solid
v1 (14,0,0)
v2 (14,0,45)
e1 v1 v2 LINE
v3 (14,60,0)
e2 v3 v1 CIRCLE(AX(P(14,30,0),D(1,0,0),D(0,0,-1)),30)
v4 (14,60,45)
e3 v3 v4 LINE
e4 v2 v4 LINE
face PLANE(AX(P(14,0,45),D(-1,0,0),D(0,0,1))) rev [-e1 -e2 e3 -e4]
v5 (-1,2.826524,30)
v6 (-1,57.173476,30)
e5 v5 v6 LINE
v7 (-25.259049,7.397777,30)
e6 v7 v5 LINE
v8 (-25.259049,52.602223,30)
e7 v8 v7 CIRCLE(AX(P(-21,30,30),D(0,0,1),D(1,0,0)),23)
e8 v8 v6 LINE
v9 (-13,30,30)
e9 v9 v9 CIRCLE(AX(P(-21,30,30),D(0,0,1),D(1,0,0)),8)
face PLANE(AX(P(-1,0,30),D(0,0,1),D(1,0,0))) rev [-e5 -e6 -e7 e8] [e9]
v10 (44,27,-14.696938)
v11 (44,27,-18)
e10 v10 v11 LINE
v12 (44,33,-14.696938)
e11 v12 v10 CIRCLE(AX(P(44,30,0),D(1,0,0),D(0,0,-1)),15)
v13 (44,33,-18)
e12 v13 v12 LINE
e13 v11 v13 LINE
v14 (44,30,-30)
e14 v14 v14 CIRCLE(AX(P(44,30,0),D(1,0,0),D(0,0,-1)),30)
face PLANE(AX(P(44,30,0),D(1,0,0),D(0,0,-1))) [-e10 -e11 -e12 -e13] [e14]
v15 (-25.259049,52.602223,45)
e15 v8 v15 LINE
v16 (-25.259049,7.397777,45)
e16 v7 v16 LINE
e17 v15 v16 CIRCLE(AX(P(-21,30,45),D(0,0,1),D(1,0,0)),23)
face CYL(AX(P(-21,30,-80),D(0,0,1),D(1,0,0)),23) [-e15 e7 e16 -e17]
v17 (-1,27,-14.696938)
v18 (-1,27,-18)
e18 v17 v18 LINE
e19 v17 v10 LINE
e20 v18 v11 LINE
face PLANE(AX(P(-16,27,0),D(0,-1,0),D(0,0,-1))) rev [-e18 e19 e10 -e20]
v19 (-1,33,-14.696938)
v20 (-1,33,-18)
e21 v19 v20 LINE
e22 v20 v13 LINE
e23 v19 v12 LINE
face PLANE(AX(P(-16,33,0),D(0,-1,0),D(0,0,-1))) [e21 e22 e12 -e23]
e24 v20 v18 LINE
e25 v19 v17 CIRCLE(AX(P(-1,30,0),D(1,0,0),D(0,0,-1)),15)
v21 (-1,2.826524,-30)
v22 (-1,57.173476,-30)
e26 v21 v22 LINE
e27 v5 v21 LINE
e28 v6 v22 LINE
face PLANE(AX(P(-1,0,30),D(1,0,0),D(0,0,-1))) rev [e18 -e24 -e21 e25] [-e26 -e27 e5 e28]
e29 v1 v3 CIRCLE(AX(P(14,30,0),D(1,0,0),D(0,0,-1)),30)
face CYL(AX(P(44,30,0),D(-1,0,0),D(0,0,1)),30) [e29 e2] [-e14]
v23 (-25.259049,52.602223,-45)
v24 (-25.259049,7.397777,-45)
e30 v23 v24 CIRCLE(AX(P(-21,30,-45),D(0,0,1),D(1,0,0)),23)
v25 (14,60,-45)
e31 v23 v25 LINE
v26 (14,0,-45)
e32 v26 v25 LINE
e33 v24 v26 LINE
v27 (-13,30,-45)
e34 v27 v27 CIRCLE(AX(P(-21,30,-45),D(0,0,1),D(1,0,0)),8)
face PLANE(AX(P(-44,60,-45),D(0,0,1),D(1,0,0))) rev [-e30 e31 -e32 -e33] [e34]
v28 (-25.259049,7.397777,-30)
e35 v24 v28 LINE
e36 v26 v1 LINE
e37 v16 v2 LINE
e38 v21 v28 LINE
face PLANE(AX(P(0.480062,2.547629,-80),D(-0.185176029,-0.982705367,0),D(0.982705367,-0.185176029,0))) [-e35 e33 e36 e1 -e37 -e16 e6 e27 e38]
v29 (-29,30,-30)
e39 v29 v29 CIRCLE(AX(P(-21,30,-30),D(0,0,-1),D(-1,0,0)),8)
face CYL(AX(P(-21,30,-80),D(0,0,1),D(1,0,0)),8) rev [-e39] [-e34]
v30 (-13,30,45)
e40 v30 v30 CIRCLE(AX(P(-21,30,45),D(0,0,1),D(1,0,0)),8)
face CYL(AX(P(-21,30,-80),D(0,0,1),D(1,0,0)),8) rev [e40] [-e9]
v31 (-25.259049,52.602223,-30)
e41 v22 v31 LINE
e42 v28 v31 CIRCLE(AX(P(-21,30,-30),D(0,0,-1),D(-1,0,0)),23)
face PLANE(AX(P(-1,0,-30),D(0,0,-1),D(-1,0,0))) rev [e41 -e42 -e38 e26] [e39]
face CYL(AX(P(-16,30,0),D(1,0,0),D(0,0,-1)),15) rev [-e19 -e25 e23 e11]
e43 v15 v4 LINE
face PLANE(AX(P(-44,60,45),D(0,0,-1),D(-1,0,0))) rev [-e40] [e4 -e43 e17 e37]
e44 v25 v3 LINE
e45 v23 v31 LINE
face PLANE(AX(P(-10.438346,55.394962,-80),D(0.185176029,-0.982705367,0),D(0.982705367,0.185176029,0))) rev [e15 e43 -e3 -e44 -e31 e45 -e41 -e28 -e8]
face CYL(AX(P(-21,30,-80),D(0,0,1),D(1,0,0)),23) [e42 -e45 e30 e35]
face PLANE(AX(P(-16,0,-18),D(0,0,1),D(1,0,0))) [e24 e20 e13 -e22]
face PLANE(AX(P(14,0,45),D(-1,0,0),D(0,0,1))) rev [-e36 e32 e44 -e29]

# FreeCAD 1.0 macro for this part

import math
import FreeCAD as App
import Part
import Sketcher

V = App.Vector
Q = App.Units.Quantity

doc = App.newDocument("Part")
body = doc.addObject("PartDesign::Body", "Body")

sketch1 = body.newObject("Sketcher::SketchObject", "Sketch")
sketch1.AttachmentSupport = (doc.getObject("XZ_Plane"), [""])
sketch1.MapMode = "FlatFace"
sketch1.addGeometry([
    Part.LineSegment(V(-44, -45, 0), V(-44, 45, 0)),
    Part.LineSegment(V(-44, 45, 0), V(44, 45, 0)),
    Part.LineSegment(V(44, 45, 0), V(44, -45, 0)),
    Part.LineSegment(V(44, -45, 0), V(-44, -45, 0)),
], False)
sketch1.addConstraint([
    Sketcher.Constraint("Coincident", 0, 2, 1, 1),
    Sketcher.Constraint("Coincident", 1, 2, 2, 1),
    Sketcher.Constraint("Coincident", 2, 2, 3, 1),
    Sketcher.Constraint("Coincident", 3, 2, 0, 1),
    Sketcher.Constraint("Vertical", 0),
    Sketcher.Constraint("Horizontal", 1),
    Sketcher.Constraint("Vertical", 2),
    Sketcher.Constraint("Horizontal", 3),
    Sketcher.Constraint("Symmetric", 0, 2, 2, 2, -1, 1),
    Sketcher.Constraint("DistanceX", 1, 1, 1, 2, Q("88 mm")),
    Sketcher.Constraint("DistanceY", 0, 1, 0, 2, Q("90 mm")),
])
pad1 = body.newObject("PartDesign::Pad", "Pad")
pad1.Profile = sketch1
pad1.Length = 60
pad1.Reversed = True

sketch2 = body.newObject("Sketcher::SketchObject", "Sketch001")
sketch2.AttachmentSupport = (doc.getObject("XZ_Plane"), [""])
sketch2.MapMode = "FlatFace"
sketch2.AttachmentOffset = App.Placement(V(0, 0, -60), App.Rotation())
sketch2.addGeometry([
    Part.LineSegment(V(-44, -30, 0), V(-44, 30, 0)),
    Part.LineSegment(V(-44, 30, 0), V(-1, 30, 0)),
    Part.LineSegment(V(-1, 30, 0), V(-1, -30, 0)),
    Part.LineSegment(V(-1, -30, 0), V(-44, -30, 0)),
    Part.LineSegment(V(14, -45, 0), V(14, 45, 0)),
    Part.LineSegment(V(14, 45, 0), V(44, 45, 0)),
    Part.LineSegment(V(44, 45, 0), V(44, -45, 0)),
    Part.LineSegment(V(44, -45, 0), V(14, -45, 0)),
], False)
sketch2.addConstraint([
    Sketcher.Constraint("Coincident", 0, 2, 1, 1),
    Sketcher.Constraint("Coincident", 1, 2, 2, 1),
    Sketcher.Constraint("Coincident", 2, 2, 3, 1),
    Sketcher.Constraint("Coincident", 3, 2, 0, 1),
    Sketcher.Constraint("Coincident", 4, 2, 5, 1),
    Sketcher.Constraint("Coincident", 5, 2, 6, 1),
    Sketcher.Constraint("Coincident", 6, 2, 7, 1),
    Sketcher.Constraint("Coincident", 7, 2, 4, 1),
    Sketcher.Constraint("Vertical", 0),
    Sketcher.Constraint("Horizontal", 1),
    Sketcher.Constraint("Vertical", 2),
    Sketcher.Constraint("Horizontal", 3),
    Sketcher.Constraint("Vertical", 4),
    Sketcher.Constraint("Horizontal", 5),
    Sketcher.Constraint("Vertical", 6),
    Sketcher.Constraint("Horizontal", 7),
    Sketcher.Constraint("DistanceX", 1, 1, 1, 2, Q("43 mm")),
    Sketcher.Constraint("DistanceX", 5, 1, 5, 2, Q("30 mm")),
    Sketcher.Constraint("DistanceY", 0, 1, 0, 2, Q("60 mm")),
    Sketcher.Constraint("DistanceY", 4, 1, 4, 2, Q("90 mm")),
    Sketcher.Constraint("DistanceX", 0, 2, -1, 1, Q("44 mm")),
    Sketcher.Constraint("DistanceY", -1, 1, 0, 2, Q("30 mm")),
    Sketcher.Constraint("DistanceX", -1, 1, 4, 2, Q("14 mm")),
    Sketcher.Constraint("DistanceY", -1, 1, 4, 2, Q("45 mm")),
])
pocket1 = body.newObject("PartDesign::Pocket", "Pocket")
pocket1.Profile = sketch2
pocket1.Length = 60
pocket1.Reversed = True

sketch3 = body.newObject("Sketcher::SketchObject", "Sketch002")
sketch3.AttachmentSupport = (doc.getObject("XY_Plane"), [""])
sketch3.MapMode = "FlatFace"
sketch3.AttachmentOffset = App.Placement(V(0, 0, 45), App.Rotation())
sketch3.addGeometry([
    Part.ArcOfCircle(Part.Circle(V(-21, 30, 0), V(0, 0, 1), 23), math.radians(-180), math.radians(-100.671395)),
    Part.LineSegment(V(-44, 30, 0), V(-44, 0, 0)),
    Part.LineSegment(V(-44, 0, 0), V(14, 0, 0)),
    Part.LineSegment(V(14, 0, 0), V(-25.259049, 7.397777, 0)),
    Part.ArcOfCircle(Part.Circle(V(-21, 30, 0), V(0, 0, 1), 23), math.radians(100.671395), math.radians(180)),
    Part.LineSegment(V(-25.259049, 52.602223, 0), V(14, 60, 0)),
    Part.LineSegment(V(14, 60, 0), V(-44, 60, 0)),
    Part.LineSegment(V(-44, 60, 0), V(-44, 30, 0)),
    Part.Circle(V(-21, 30, 0), V(0, 0, 1), 8),
], False)
sketch3.addConstraint([
    Sketcher.Constraint("Tangent", 0, 1, 1, 1),
    Sketcher.Constraint("Coincident", 1, 2, 2, 1),
    Sketcher.Constraint("Coincident", 2, 2, 3, 1),
    Sketcher.Constraint("Tangent", 3, 2, 0, 2),
    Sketcher.Constraint("Tangent", 4, 1, 5, 1),
    Sketcher.Constraint("Coincident", 5, 2, 6, 1),
    Sketcher.Constraint("Coincident", 6, 2, 7, 1),
    Sketcher.Constraint("Tangent", 7, 2, 4, 2),
    Sketcher.Constraint("Vertical", 1),
    Sketcher.Constraint("Horizontal", 2),
    Sketcher.Constraint("Horizontal", 6),
    Sketcher.Constraint("Vertical", 7),
    Sketcher.Constraint("Coincident", 4, 3, 0, 3),
    Sketcher.Constraint("Coincident", 8, 3, 0, 3),
    Sketcher.Constraint("Equal", 0, 4),
    Sketcher.Constraint("PointOnObject", 1, 2, -1),
    Sketcher.Constraint("Vertical", 3, 2, 4, 1),
    Sketcher.Constraint("Vertical", 2, 2, 5, 2),
    Sketcher.Constraint("Diameter", 8, Q("16 mm")),
    Sketcher.Constraint("Radius", 0, Q("23 mm")),
    Sketcher.Constraint("DistanceX", 2, 1, 2, 2, Q("58 mm")),
    Sketcher.Constraint("DistanceY", 1, 2, 1, 1, Q("30 mm")),
    Sketcher.Constraint("DistanceX", 0, 3, -1, 1, Q("21 mm")),
])
pocket2 = body.newObject("PartDesign::Pocket", "Pocket001")
pocket2.Profile = sketch3
pocket2.Length = 125

sketch4 = body.newObject("Sketcher::SketchObject", "Sketch003")
sketch4.AttachmentSupport = (doc.getObject("YZ_Plane"), [""])
sketch4.MapMode = "FlatFace"
sketch4.AttachmentOffset = App.Placement(V(0, 0, 14), App.Rotation())
sketch4.addGeometry([
    Part.LineSegment(V(33, -18, 0), V(33, -14.696938, 0)),
    Part.ArcOfCircle(Part.Circle(V(30, 0, 0), V(0, 0, 1), 15), math.radians(-78.463041), math.radians(258.463041)),
    Part.LineSegment(V(27, -14.696938, 0), V(27, -18, 0)),
    Part.LineSegment(V(27, -18, 0), V(33, -18, 0)),
], False)
sketch4.addConstraint([
    Sketcher.Constraint("Coincident", 0, 2, 1, 1),
    Sketcher.Constraint("Coincident", 1, 2, 2, 1),
    Sketcher.Constraint("Coincident", 2, 2, 3, 1),
    Sketcher.Constraint("Coincident", 3, 2, 0, 1),
    Sketcher.Constraint("Vertical", 0),
    Sketcher.Constraint("Vertical", 2),
    Sketcher.Constraint("Horizontal", 3),
    Sketcher.Constraint("PointOnObject", 1, 3, -1),
    Sketcher.Constraint("Horizontal", 0, 2, 1, 2),
    Sketcher.Constraint("Radius", 1, Q("15 mm")),
    Sketcher.Constraint("DistanceX", 3, 1, 3, 2, Q("6 mm")),
    Sketcher.Constraint("DistanceX", -1, 1, 1, 3, Q("30 mm")),
    Sketcher.Constraint("DistanceY", 2, 2, -1, 1, Q("18 mm")),
])
pocket3 = body.newObject("PartDesign::Pocket", "Pocket002")
pocket3.Profile = sketch4
pocket3.Length = 30

sketch5 = body.newObject("Sketcher::SketchObject", "Sketch004")
sketch5.AttachmentSupport = (doc.getObject("YZ_Plane"), [""])
sketch5.MapMode = "FlatFace"
sketch5.AttachmentOffset = App.Placement(V(0, 0, 14), App.Rotation())
sketch5.addGeometry([
    Part.Circle(V(30, 0, 0), V(0, 0, 1), 30),
    Part.ArcOfCircle(Part.Circle(V(30, 0, 0), V(0, 0, 1), 15), math.radians(-78.463041), math.radians(258.463041)),
    Part.LineSegment(V(33, -14.696938, 0), V(33, -18, 0)),
    Part.LineSegment(V(33, -18, 0), V(27, -18, 0)),
    Part.LineSegment(V(27, -18, 0), V(27, -14.696938, 0)),
], False)
sketch5.addConstraint([
    Sketcher.Constraint("Coincident", 1, 1, 2, 1),
    Sketcher.Constraint("Coincident", 2, 2, 3, 1),
    Sketcher.Constraint("Coincident", 3, 2, 4, 1),
    Sketcher.Constraint("Coincident", 4, 2, 1, 2),
    Sketcher.Constraint("Vertical", 2),
    Sketcher.Constraint("Horizontal", 3),
    Sketcher.Constraint("Vertical", 4),
    Sketcher.Constraint("Coincident", 1, 3, 0, 3),
    Sketcher.Constraint("PointOnObject", 0, 3, -1),
    Sketcher.Constraint("Horizontal", 1, 1, 4, 2),
    Sketcher.Constraint("Diameter", 0, Q("60 mm")),
    Sketcher.Constraint("Radius", 1, Q("15 mm")),
    Sketcher.Constraint("DistanceX", 3, 2, 3, 1, Q("6 mm")),
    Sketcher.Constraint("DistanceX", -1, 1, 0, 3, Q("30 mm")),
    Sketcher.Constraint("DistanceY", 2, 2, -1, 1, Q("18 mm")),
])
pad2 = body.newObject("PartDesign::Pad", "Pad001")
pad2.Profile = sketch5
pad2.Length = 30

doc.recompute()
